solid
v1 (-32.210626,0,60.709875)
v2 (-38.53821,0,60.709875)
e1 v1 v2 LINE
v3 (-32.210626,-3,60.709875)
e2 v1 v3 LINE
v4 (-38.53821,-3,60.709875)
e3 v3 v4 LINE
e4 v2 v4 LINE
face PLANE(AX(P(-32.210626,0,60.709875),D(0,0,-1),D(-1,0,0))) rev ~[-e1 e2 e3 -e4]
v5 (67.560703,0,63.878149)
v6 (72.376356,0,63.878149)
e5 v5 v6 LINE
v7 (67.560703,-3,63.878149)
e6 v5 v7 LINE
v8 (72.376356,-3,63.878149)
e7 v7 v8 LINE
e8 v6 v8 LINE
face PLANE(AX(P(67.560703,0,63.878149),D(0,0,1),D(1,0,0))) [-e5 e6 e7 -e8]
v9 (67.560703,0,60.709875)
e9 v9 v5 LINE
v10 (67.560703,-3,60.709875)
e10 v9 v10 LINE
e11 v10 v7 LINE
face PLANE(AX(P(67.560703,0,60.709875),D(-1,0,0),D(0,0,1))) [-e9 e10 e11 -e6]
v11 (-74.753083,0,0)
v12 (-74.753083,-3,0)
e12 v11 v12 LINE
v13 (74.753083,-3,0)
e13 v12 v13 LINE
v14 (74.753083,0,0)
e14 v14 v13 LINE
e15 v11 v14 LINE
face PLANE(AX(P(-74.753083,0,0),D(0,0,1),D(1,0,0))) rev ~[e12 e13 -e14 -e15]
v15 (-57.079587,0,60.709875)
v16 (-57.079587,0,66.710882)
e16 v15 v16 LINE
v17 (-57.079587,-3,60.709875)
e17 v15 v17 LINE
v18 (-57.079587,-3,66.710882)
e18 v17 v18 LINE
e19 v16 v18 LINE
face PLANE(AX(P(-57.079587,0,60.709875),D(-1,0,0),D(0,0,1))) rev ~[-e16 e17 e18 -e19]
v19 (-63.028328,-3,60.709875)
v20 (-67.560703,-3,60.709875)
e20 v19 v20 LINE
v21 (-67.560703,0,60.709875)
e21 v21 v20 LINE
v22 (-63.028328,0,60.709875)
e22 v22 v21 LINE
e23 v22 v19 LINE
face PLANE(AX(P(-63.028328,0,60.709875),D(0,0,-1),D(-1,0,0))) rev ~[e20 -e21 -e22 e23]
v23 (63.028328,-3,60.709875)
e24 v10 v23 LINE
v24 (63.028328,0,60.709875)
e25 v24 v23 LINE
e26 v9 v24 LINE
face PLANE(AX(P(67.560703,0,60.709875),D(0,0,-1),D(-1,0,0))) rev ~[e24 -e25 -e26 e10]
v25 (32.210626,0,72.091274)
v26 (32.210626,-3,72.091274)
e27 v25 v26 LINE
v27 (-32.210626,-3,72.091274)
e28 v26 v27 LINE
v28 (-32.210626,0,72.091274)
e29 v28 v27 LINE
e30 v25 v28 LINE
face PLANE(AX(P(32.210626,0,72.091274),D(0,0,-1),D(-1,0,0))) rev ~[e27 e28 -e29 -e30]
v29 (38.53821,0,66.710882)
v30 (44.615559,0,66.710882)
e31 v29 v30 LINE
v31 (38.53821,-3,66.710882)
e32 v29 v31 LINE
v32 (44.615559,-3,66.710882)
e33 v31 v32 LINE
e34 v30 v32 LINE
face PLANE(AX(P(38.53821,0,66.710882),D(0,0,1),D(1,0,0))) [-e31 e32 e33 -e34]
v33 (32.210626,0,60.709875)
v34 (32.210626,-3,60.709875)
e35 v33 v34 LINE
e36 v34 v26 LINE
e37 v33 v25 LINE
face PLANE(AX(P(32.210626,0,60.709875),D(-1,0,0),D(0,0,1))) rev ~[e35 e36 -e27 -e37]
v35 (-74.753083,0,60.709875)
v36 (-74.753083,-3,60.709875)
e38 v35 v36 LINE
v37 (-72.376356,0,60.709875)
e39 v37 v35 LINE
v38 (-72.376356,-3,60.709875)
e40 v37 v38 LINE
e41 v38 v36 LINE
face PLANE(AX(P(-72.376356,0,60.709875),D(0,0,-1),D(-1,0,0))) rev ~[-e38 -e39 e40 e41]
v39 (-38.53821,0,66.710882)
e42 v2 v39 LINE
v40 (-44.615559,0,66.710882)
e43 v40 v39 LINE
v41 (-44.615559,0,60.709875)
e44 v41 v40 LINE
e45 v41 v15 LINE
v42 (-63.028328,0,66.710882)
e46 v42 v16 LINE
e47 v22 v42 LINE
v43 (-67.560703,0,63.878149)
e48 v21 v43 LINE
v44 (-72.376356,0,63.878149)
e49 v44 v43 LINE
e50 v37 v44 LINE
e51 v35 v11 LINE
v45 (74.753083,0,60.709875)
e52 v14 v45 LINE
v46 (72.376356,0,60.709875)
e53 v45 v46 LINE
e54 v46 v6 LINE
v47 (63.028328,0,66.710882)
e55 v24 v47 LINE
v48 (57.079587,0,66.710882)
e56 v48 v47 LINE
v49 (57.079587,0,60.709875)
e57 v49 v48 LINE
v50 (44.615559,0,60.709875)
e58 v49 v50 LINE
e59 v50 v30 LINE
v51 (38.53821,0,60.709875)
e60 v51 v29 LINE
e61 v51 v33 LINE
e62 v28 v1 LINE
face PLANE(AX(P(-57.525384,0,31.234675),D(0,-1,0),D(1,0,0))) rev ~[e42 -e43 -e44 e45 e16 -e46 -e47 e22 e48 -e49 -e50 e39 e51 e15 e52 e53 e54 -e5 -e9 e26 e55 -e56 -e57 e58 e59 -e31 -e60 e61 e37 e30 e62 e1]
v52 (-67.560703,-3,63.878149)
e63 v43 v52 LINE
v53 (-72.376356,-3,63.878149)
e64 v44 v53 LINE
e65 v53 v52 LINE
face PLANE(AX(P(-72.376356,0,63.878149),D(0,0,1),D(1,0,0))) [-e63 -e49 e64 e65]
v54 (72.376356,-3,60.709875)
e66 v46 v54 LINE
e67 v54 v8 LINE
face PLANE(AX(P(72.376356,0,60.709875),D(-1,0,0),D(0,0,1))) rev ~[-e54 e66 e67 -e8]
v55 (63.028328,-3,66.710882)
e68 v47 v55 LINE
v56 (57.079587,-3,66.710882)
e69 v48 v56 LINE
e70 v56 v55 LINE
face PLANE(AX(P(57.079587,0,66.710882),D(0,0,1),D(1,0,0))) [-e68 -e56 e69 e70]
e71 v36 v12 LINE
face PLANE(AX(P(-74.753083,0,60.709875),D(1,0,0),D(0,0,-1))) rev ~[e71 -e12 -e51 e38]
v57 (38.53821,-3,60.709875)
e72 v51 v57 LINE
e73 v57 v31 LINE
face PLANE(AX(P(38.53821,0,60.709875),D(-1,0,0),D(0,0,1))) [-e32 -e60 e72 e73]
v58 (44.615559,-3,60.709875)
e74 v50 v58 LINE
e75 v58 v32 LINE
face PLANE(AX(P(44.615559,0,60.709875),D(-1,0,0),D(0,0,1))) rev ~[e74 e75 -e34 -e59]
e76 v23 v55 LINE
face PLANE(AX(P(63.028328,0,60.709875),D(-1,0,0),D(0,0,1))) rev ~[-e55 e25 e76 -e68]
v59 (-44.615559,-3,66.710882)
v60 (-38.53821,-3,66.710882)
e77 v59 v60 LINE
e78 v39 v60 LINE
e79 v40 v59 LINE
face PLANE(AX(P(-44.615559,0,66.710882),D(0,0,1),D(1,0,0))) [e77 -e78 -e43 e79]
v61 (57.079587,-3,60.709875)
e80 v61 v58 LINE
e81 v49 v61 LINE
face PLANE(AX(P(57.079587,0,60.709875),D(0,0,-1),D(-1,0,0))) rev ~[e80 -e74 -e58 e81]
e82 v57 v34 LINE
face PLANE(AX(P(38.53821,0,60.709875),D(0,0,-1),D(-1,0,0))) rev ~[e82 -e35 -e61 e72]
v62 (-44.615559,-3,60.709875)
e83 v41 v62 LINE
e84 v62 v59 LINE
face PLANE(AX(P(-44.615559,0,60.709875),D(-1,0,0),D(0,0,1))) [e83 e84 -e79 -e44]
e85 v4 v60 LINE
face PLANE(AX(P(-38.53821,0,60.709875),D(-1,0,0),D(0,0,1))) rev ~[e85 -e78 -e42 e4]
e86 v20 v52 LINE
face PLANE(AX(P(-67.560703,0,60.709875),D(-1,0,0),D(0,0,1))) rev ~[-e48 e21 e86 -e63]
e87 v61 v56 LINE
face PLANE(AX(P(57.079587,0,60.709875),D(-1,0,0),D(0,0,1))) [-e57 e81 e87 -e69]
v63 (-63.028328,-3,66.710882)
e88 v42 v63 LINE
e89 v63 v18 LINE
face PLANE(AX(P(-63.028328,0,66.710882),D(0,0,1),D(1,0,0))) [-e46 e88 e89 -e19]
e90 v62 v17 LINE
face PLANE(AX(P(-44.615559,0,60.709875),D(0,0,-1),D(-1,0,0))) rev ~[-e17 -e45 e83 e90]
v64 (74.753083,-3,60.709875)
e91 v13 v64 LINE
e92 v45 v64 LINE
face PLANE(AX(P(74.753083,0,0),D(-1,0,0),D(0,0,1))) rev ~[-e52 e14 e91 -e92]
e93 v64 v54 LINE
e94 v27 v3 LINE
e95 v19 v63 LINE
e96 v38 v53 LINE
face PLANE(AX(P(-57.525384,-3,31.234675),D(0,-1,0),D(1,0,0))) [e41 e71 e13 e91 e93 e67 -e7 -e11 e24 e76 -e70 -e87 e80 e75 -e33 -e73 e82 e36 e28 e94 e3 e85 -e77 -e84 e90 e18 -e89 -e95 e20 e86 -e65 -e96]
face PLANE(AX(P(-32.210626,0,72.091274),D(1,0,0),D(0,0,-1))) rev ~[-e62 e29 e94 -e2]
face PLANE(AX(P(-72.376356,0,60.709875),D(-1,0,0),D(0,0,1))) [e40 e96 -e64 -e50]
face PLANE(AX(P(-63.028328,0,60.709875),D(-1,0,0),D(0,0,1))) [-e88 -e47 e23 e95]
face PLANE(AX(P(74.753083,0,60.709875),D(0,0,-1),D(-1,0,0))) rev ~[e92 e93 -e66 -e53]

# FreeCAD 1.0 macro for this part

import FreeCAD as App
import Part
import Sketcher

V = App.Vector
Q = App.Units.Quantity

doc = App.newDocument("Part")
body = doc.addObject("PartDesign::Body", "Body")

sketch1 = body.newObject("Sketcher::SketchObject", "Sketch")
sketch1.AttachmentSupport = (doc.getObject("XZ_Plane"), [""])
sketch1.MapMode = "FlatFace"
sketch1.addGeometry([
    Part.LineSegment(V(-74.8, 60.7, 0), V(-74.8, 0, 0)),
    Part.LineSegment(V(-74.8, 0, 0), V(74.8, 0, 0)),
    Part.LineSegment(V(74.8, 0, 0), V(74.8, 60.7, 0)),
    Part.LineSegment(V(74.8, 60.7, 0), V(72.4, 60.7, 0)),
    Part.LineSegment(V(72.4, 60.7, 0), V(72.4, 63.9, 0)),
    Part.LineSegment(V(72.4, 63.9, 0), V(67.6, 63.9, 0)),
    Part.LineSegment(V(67.6, 63.9, 0), V(67.6, 60.7, 0)),
    Part.LineSegment(V(67.6, 60.7, 0), V(63, 60.7, 0)),
    Part.LineSegment(V(63, 60.7, 0), V(63, 66.7, 0)),
    Part.LineSegment(V(63, 66.7, 0), V(57.1, 66.7, 0)),
    Part.LineSegment(V(57.1, 66.7, 0), V(57.1, 60.7, 0)),
    Part.LineSegment(V(57.1, 60.7, 0), V(44.6, 60.7, 0)),
    Part.LineSegment(V(44.6, 60.7, 0), V(44.6, 66.7, 0)),
    Part.LineSegment(V(44.6, 66.7, 0), V(38.5, 66.7, 0)),
    Part.LineSegment(V(38.5, 66.7, 0), V(38.5, 60.7, 0)),
    Part.LineSegment(V(38.5, 60.7, 0), V(32.2, 60.7, 0)),
    Part.LineSegment(V(32.2, 60.7, 0), V(32.2, 72.1, 0)),
    Part.LineSegment(V(32.2, 72.1, 0), V(-32.2, 72.1, 0)),
    Part.LineSegment(V(-32.2, 72.1, 0), V(-32.2, 60.7, 0)),
    Part.LineSegment(V(-32.2, 60.7, 0), V(-38.5, 60.7, 0)),
    Part.LineSegment(V(-38.5, 60.7, 0), V(-38.5, 66.7, 0)),
    Part.LineSegment(V(-38.5, 66.7, 0), V(-44.6, 66.7, 0)),
    Part.LineSegment(V(-44.6, 66.7, 0), V(-44.6, 60.7, 0)),
    Part.LineSegment(V(-44.6, 60.7, 0), V(-57.1, 60.7, 0)),
    Part.LineSegment(V(-57.1, 60.7, 0), V(-57.1, 66.7, 0)),
    Part.LineSegment(V(-57.1, 66.7, 0), V(-63, 66.7, 0)),
    Part.LineSegment(V(-63, 66.7, 0), V(-63, 60.7, 0)),
    Part.LineSegment(V(-63, 60.7, 0), V(-67.6, 60.7, 0)),
    Part.LineSegment(V(-67.6, 60.7, 0), V(-67.6, 63.9, 0)),
    Part.LineSegment(V(-67.6, 63.9, 0), V(-72.4, 63.9, 0)),
    Part.LineSegment(V(-72.4, 63.9, 0), V(-72.4, 60.7, 0)),
    Part.LineSegment(V(-72.4, 60.7, 0), V(-74.8, 60.7, 0)),
], False)
sketch1.addConstraint([
    Sketcher.Constraint("Coincident", 0, 2, 1, 1),
    Sketcher.Constraint("Coincident", 1, 2, 2, 1),
    Sketcher.Constraint("Coincident", 2, 2, 3, 1),
    Sketcher.Constraint("Coincident", 3, 2, 4, 1),
    Sketcher.Constraint("Coincident", 4, 2, 5, 1),
    Sketcher.Constraint("Coincident", 5, 2, 6, 1),
    Sketcher.Constraint("Coincident", 6, 2, 7, 1),
    Sketcher.Constraint("Coincident", 7, 2, 8, 1),
    Sketcher.Constraint("Coincident", 8, 2, 9, 1),
    Sketcher.Constraint("Coincident", 9, 2, 10, 1),
    Sketcher.Constraint("Coincident", 10, 2, 11, 1),
    Sketcher.Constraint("Coincident", 11, 2, 12, 1),
    Sketcher.Constraint("Coincident", 12, 2, 13, 1),
    Sketcher.Constraint("Coincident", 13, 2, 14, 1),
    Sketcher.Constraint("Coincident", 14, 2, 15, 1),
    Sketcher.Constraint("Coincident", 15, 2, 16, 1),
    Sketcher.Constraint("Coincident", 16, 2, 17, 1),
    Sketcher.Constraint("Coincident", 17, 2, 18, 1),
    Sketcher.Constraint("Coincident", 18, 2, 19, 1),
    Sketcher.Constraint("Coincident", 19, 2, 20, 1),
    Sketcher.Constraint("Coincident", 20, 2, 21, 1),
    Sketcher.Constraint("Coincident", 21, 2, 22, 1),
    Sketcher.Constraint("Coincident", 22, 2, 23, 1),
    Sketcher.Constraint("Coincident", 23, 2, 24, 1),
    Sketcher.Constraint("Coincident", 24, 2, 25, 1),
    Sketcher.Constraint("Coincident", 25, 2, 26, 1),
    Sketcher.Constraint("Coincident", 26, 2, 27, 1),
    Sketcher.Constraint("Coincident", 27, 2, 28, 1),
    Sketcher.Constraint("Coincident", 28, 2, 29, 1),
    Sketcher.Constraint("Coincident", 29, 2, 30, 1),
    Sketcher.Constraint("Coincident", 30, 2, 31, 1),
    Sketcher.Constraint("Coincident", 31, 2, 0, 1),
    Sketcher.Constraint("Vertical", 0),
    Sketcher.Constraint("Horizontal", 1),
    Sketcher.Constraint("Vertical", 2),
    Sketcher.Constraint("Horizontal", 3),
    Sketcher.Constraint("Vertical", 4),
    Sketcher.Constraint("Horizontal", 5),
    Sketcher.Constraint("Vertical", 6),
    Sketcher.Constraint("Horizontal", 7),
    Sketcher.Constraint("Vertical", 8),
    Sketcher.Constraint("Horizontal", 9),
    Sketcher.Constraint("Vertical", 10),
    Sketcher.Constraint("Horizontal", 11),
    Sketcher.Constraint("Vertical", 12),
    Sketcher.Constraint("Horizontal", 13),
    Sketcher.Constraint("Vertical", 14),
    Sketcher.Constraint("Horizontal", 15),
    Sketcher.Constraint("Vertical", 16),
    Sketcher.Constraint("Horizontal", 17),
    Sketcher.Constraint("Vertical", 18),
    Sketcher.Constraint("Horizontal", 19),
    Sketcher.Constraint("Vertical", 20),
    Sketcher.Constraint("Horizontal", 21),
    Sketcher.Constraint("Vertical", 22),
    Sketcher.Constraint("Horizontal", 23),
    Sketcher.Constraint("Vertical", 24),
    Sketcher.Constraint("Horizontal", 25),
    Sketcher.Constraint("Vertical", 26),
    Sketcher.Constraint("Horizontal", 27),
    Sketcher.Constraint("Vertical", 28),
    Sketcher.Constraint("Horizontal", 29),
    Sketcher.Constraint("Vertical", 30),
    Sketcher.Constraint("Horizontal", 31),
    Sketcher.Constraint("Symmetric", 0, 2, 1, 2, -1, 1),
    Sketcher.Constraint("Symmetric", 15, 2, 18, 2, -2),
    Sketcher.Constraint("Symmetric", 13, 2, 20, 2, -2),
    Sketcher.Constraint("Symmetric", 11, 2, 22, 2, -2),
    Sketcher.Constraint("Symmetric", 9, 2, 24, 2, -2),
    Sketcher.Constraint("Symmetric", 7, 2, 26, 2, -2),
    Sketcher.Constraint("Symmetric", 5, 2, 28, 2, -2),
    Sketcher.Constraint("Symmetric", 3, 2, 30, 2, -2),
    Sketcher.Constraint("Horizontal", 3, 2, 6, 2),
    Sketcher.Constraint("Horizontal", 7, 2, 10, 2),
    Sketcher.Constraint("Horizontal", 9, 2, 12, 2),
    Sketcher.Constraint("Horizontal", 11, 2, 14, 2),
    Sketcher.Constraint("DistanceY", 16, 1, 16, 2, Q("11.381399 mm")),
    Sketcher.Constraint("DistanceX", 9, 2, 9, 1, Q("5.948741 mm")),
    Sketcher.Constraint("DistanceX", 13, 2, 13, 1, Q("6.077349 mm")),
    Sketcher.Constraint("DistanceX", 17, 2, 17, 1, Q("64.421251 mm")),
    Sketcher.Constraint("DistanceX", 1, 1, 1, 2, Q("149.506167 mm")),
    Sketcher.Constraint("DistanceX", 3, 2, 3, 1, Q("2.376728 mm")),
    Sketcher.Constraint("DistanceX", 5, 2, 5, 1, Q("4.815653 mm")),
    Sketcher.Constraint("DistanceX", 7, 2, 7, 1, Q("4.532374 mm")),
    Sketcher.Constraint("DistanceX", 11, 2, 11, 1, Q("12.464028 mm")),
    Sketcher.Constraint("DistanceY", 0, 2, 0, 1, Q("60.709875 mm")),
    Sketcher.Constraint("DistanceY", 4, 1, 4, 2, Q("3.168274 mm")),
    Sketcher.Constraint("DistanceY", 8, 1, 8, 2, Q("6.001007 mm")),
])
pad1 = body.newObject("PartDesign::Pad", "Pad")
pad1.Profile = sketch1
pad1.Length = 3

doc.recompute()
